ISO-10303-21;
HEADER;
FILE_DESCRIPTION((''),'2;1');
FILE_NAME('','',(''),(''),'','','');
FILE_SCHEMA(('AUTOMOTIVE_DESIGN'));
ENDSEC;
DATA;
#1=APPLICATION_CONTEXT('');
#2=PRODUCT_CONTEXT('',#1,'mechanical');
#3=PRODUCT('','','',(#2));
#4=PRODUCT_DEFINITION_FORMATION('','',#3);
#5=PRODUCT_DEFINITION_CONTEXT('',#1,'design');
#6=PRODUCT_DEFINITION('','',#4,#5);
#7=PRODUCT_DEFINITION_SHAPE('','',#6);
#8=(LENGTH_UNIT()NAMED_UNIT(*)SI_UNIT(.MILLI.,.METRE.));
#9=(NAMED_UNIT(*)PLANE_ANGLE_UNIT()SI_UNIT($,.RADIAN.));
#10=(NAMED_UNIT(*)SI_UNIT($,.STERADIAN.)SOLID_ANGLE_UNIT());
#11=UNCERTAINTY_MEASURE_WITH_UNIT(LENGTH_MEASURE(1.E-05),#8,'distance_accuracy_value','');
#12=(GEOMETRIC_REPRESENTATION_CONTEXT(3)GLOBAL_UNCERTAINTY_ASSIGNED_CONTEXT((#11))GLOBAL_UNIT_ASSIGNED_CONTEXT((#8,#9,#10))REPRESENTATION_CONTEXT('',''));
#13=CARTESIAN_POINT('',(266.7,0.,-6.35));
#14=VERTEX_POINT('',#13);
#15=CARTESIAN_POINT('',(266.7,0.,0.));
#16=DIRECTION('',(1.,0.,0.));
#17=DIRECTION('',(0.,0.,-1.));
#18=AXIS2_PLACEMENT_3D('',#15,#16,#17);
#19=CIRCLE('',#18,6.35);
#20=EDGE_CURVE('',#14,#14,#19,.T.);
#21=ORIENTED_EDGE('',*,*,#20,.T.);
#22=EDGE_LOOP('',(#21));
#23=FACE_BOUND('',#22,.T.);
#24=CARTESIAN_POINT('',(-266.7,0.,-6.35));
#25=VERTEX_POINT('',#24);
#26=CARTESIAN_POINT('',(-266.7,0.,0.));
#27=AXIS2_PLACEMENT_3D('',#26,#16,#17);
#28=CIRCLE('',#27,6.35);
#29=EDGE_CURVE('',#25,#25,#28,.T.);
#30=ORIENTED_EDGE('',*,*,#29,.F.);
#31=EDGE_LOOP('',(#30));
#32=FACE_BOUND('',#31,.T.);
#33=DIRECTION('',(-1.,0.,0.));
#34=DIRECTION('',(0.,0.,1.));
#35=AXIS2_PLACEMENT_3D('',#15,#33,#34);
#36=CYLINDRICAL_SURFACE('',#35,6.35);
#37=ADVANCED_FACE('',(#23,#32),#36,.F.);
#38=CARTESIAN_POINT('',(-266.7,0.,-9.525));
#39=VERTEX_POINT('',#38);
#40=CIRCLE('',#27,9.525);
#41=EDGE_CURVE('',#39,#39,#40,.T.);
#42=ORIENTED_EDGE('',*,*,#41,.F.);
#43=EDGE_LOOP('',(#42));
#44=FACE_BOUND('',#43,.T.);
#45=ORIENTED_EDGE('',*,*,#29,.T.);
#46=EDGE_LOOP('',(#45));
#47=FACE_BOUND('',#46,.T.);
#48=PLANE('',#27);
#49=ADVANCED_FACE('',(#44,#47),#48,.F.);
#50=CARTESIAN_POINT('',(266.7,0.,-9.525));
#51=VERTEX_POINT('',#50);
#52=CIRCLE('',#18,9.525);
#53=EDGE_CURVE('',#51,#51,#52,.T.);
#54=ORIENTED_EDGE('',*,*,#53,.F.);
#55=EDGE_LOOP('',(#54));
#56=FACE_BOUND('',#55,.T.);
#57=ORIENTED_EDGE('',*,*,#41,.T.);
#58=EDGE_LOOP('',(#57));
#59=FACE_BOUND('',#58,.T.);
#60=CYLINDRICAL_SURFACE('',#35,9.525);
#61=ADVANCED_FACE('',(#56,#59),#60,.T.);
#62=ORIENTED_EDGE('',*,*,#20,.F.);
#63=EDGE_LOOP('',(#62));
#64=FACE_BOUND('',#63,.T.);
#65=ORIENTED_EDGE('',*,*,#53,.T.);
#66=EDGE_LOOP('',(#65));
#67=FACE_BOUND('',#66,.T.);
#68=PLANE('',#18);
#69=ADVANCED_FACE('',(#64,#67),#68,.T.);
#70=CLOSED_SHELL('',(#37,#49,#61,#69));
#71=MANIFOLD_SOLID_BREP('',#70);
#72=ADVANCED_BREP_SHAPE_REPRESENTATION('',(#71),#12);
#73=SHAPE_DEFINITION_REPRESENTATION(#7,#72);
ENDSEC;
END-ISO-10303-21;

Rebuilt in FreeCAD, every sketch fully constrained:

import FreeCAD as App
import Part
import Sketcher

V = App.Vector
Q = App.Units.Quantity

doc = App.newDocument("Part")
params = doc.addObject("Spreadsheet::Sheet", "Params")
for row, (alias, value) in enumerate([
    ("sketch1_diameter", "0.5 in"),
    ("sketch1_diameter2", "0.75 in"),
    ("pad1_length", "21 in"),
], start=1):
    params.set(f"A{row}", alias)
    params.set(f"B{row}", "=" + value)
    params.setAlias(f"B{row}", alias)

body = doc.addObject("PartDesign::Body", "Body")

# Sketch on YZ plane
sketch1 = doc.addObject("Sketcher::SketchObject", "Sketch")
body.addObject(sketch1)
sketch1.AttachmentSupport = (doc.YZ_Plane, [""])
sketch1.MapMode = "FlatFace"
sketch1.addGeometry(Part.Circle(V(0, 0, 0), V(0, 0, 1), 10), False)
sketch1.addGeometry(Part.Circle(V(0, 0, 0), V(0, 0, 1), 6), False)
sketch1.addConstraint(Sketcher.Constraint("Coincident", 0, 3, -1, 1))
sketch1.addConstraint(Sketcher.Constraint("Coincident", 1, 3, -1, 1))
sketch1.addConstraint(Sketcher.Constraint("Diameter", 1, Q("0.5 in")))
sketch1.addConstraint(Sketcher.Constraint("Diameter", 0, Q("0.75 in")))
sketch1.setExpression("Constraints[2]", "Params.sketch1_diameter")
sketch1.setExpression("Constraints[3]", "Params.sketch1_diameter2")
pad1 = doc.addObject("PartDesign::Pad", "Pad")
body.addObject(pad1)
pad1.Profile = sketch1
pad1.setExpression("Length", "Params.pad1_length")
pad1.Midplane = True

doc.recompute()
